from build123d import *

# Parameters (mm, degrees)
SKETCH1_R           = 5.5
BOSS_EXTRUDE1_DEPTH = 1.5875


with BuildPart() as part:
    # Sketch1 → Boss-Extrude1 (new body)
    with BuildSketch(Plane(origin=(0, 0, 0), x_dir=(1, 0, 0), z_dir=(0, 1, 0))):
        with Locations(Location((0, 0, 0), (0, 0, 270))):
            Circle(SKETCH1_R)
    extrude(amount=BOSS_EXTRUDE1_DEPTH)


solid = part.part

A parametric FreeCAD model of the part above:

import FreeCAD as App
import Part
import Sketcher
from FreeCAD import Vector

doc = App.newDocument("Part")
body = doc.addObject("PartDesign::Body", "Body")

sketch1 = doc.addObject("Sketcher::SketchObject", "Sketch")
body.addObject(sketch1)
sketch1.AttachmentSupport = (doc.XZ_Plane, [""])
sketch1.MapMode = "FlatFace"
sketch1.addGeometry(Part.Circle(Vector(0, 0, 0), Vector(0, 0, 1), 6), False)
sketch1.addConstraint([
    Sketcher.Constraint("Coincident", 0, 3, -1, 1),
    Sketcher.Constraint("Diameter", 0, 11.0),
])
pad1 = doc.addObject("PartDesign::Pad", "Pad")
body.addObject(pad1)
pad1.Profile = sketch1
pad1.Length = 1.5875
pad1.Reversed = True

doc.recompute()
